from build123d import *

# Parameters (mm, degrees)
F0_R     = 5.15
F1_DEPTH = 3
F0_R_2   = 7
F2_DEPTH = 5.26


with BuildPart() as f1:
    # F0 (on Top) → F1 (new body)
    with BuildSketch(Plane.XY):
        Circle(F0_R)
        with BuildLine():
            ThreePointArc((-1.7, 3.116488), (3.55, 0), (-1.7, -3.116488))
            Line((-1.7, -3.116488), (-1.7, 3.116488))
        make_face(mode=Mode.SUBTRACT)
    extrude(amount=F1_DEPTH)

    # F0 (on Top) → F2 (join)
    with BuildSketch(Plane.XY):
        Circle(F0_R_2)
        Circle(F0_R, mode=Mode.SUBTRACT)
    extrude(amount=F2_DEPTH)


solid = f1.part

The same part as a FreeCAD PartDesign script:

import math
import FreeCAD as App
import Part
import Sketcher
Q = App.Units.Quantity

doc = App.newDocument("Part")
params = doc.addObject("Spreadsheet::Sheet", "Params")
for row, (alias, value) in enumerate([
    ("sketch1_diameter", "10.3 mm"),
    ("sketch1_radius", "3.55 mm"),
    ("pad1_length", "3 mm"),
    ("sketch2_diameter", "14 mm"),
    ("sketch2_diameter2", "10.3 mm"),
    ("pad2_length", "5.26 mm"),
], start=1):
    params.set(f"A{row}", alias)
    params.set(f"B{row}", "=" + value)
    params.setAlias(f"B{row}", alias)

body = doc.addObject("PartDesign::Body", "Body")

# Sketch on XY plane
sketch1 = body.newObject("Sketcher::SketchObject", "Sketch")
sketch1.AttachmentSupport = (doc.getObject("XY_Plane"), [""])
sketch1.MapMode = "FlatFace"
sketch1.addGeometry(Part.Circle(App.Vector(0, 0, 0), App.Vector(0, 0, 1), 5.2), False)
sketch1.addGeometry(Part.LineSegment(App.Vector(-1.7, -3.1, 0), App.Vector(-1.7, 3.1, 0)), False)
sketch1.addGeometry(Part.ArcOfCircle(Part.Circle(App.Vector(0, 0, 0), App.Vector(0, 0, 1), 3.5), math.radians(-119), math.radians(119)), False)
sketch1.addConstraint(Sketcher.Constraint("Coincident", 1, 1, 2, 1))
sketch1.addConstraint(Sketcher.Constraint("Coincident", 2, 2, 1, 2))
sketch1.addConstraint(Sketcher.Constraint("Vertical", 1))
sketch1.addConstraint(Sketcher.Constraint("Coincident", 0, 3, -1, 1))
sketch1.addConstraint(Sketcher.Constraint("Coincident", 2, 3, -1, 1))
sketch1.addConstraint(Sketcher.Constraint("Diameter", 0, Q("10.3 mm")))
sketch1.addConstraint(Sketcher.Constraint("Radius", 2, Q("3.55 mm")))
sketch1.addConstraint(Sketcher.Constraint("DistanceX", 1, 1, -1, 1, Q("1.7 mm")))
sketch1.setExpression("Constraints[5]", "Params.sketch1_diameter")
sketch1.setExpression("Constraints[6]", "Params.sketch1_radius")
pad1 = body.newObject("PartDesign::Pad", "Pad")
pad1.Profile = sketch1
pad1.setExpression("Length", "Params.pad1_length")

# Sketch on XY plane
sketch2 = body.newObject("Sketcher::SketchObject", "Sketch001")
sketch2.AttachmentSupport = (doc.getObject("XY_Plane"), [""])
sketch2.MapMode = "FlatFace"
sketch2.addGeometry(Part.Circle(App.Vector(0, 0, 0), App.Vector(0, 0, 1), 7), False)
sketch2.addGeometry(Part.Circle(App.Vector(0, 0, 0), App.Vector(0, 0, 1), 5), False)
sketch2.addConstraint(Sketcher.Constraint("Coincident", 0, 3, -1, 1))
sketch2.addConstraint(Sketcher.Constraint("Coincident", 1, 3, -1, 1))
sketch2.addConstraint(Sketcher.Constraint("Diameter", 0, Q("14 mm")))
sketch2.addConstraint(Sketcher.Constraint("Diameter", 1, Q("10.3 mm")))
sketch2.setExpression("Constraints[2]", "Params.sketch2_diameter")
sketch2.setExpression("Constraints[3]", "Params.sketch2_diameter2")
pad2 = body.newObject("PartDesign::Pad", "Pad001")
pad2.Profile = sketch2
pad2.setExpression("Length", "Params.pad2_length")

doc.recompute()
